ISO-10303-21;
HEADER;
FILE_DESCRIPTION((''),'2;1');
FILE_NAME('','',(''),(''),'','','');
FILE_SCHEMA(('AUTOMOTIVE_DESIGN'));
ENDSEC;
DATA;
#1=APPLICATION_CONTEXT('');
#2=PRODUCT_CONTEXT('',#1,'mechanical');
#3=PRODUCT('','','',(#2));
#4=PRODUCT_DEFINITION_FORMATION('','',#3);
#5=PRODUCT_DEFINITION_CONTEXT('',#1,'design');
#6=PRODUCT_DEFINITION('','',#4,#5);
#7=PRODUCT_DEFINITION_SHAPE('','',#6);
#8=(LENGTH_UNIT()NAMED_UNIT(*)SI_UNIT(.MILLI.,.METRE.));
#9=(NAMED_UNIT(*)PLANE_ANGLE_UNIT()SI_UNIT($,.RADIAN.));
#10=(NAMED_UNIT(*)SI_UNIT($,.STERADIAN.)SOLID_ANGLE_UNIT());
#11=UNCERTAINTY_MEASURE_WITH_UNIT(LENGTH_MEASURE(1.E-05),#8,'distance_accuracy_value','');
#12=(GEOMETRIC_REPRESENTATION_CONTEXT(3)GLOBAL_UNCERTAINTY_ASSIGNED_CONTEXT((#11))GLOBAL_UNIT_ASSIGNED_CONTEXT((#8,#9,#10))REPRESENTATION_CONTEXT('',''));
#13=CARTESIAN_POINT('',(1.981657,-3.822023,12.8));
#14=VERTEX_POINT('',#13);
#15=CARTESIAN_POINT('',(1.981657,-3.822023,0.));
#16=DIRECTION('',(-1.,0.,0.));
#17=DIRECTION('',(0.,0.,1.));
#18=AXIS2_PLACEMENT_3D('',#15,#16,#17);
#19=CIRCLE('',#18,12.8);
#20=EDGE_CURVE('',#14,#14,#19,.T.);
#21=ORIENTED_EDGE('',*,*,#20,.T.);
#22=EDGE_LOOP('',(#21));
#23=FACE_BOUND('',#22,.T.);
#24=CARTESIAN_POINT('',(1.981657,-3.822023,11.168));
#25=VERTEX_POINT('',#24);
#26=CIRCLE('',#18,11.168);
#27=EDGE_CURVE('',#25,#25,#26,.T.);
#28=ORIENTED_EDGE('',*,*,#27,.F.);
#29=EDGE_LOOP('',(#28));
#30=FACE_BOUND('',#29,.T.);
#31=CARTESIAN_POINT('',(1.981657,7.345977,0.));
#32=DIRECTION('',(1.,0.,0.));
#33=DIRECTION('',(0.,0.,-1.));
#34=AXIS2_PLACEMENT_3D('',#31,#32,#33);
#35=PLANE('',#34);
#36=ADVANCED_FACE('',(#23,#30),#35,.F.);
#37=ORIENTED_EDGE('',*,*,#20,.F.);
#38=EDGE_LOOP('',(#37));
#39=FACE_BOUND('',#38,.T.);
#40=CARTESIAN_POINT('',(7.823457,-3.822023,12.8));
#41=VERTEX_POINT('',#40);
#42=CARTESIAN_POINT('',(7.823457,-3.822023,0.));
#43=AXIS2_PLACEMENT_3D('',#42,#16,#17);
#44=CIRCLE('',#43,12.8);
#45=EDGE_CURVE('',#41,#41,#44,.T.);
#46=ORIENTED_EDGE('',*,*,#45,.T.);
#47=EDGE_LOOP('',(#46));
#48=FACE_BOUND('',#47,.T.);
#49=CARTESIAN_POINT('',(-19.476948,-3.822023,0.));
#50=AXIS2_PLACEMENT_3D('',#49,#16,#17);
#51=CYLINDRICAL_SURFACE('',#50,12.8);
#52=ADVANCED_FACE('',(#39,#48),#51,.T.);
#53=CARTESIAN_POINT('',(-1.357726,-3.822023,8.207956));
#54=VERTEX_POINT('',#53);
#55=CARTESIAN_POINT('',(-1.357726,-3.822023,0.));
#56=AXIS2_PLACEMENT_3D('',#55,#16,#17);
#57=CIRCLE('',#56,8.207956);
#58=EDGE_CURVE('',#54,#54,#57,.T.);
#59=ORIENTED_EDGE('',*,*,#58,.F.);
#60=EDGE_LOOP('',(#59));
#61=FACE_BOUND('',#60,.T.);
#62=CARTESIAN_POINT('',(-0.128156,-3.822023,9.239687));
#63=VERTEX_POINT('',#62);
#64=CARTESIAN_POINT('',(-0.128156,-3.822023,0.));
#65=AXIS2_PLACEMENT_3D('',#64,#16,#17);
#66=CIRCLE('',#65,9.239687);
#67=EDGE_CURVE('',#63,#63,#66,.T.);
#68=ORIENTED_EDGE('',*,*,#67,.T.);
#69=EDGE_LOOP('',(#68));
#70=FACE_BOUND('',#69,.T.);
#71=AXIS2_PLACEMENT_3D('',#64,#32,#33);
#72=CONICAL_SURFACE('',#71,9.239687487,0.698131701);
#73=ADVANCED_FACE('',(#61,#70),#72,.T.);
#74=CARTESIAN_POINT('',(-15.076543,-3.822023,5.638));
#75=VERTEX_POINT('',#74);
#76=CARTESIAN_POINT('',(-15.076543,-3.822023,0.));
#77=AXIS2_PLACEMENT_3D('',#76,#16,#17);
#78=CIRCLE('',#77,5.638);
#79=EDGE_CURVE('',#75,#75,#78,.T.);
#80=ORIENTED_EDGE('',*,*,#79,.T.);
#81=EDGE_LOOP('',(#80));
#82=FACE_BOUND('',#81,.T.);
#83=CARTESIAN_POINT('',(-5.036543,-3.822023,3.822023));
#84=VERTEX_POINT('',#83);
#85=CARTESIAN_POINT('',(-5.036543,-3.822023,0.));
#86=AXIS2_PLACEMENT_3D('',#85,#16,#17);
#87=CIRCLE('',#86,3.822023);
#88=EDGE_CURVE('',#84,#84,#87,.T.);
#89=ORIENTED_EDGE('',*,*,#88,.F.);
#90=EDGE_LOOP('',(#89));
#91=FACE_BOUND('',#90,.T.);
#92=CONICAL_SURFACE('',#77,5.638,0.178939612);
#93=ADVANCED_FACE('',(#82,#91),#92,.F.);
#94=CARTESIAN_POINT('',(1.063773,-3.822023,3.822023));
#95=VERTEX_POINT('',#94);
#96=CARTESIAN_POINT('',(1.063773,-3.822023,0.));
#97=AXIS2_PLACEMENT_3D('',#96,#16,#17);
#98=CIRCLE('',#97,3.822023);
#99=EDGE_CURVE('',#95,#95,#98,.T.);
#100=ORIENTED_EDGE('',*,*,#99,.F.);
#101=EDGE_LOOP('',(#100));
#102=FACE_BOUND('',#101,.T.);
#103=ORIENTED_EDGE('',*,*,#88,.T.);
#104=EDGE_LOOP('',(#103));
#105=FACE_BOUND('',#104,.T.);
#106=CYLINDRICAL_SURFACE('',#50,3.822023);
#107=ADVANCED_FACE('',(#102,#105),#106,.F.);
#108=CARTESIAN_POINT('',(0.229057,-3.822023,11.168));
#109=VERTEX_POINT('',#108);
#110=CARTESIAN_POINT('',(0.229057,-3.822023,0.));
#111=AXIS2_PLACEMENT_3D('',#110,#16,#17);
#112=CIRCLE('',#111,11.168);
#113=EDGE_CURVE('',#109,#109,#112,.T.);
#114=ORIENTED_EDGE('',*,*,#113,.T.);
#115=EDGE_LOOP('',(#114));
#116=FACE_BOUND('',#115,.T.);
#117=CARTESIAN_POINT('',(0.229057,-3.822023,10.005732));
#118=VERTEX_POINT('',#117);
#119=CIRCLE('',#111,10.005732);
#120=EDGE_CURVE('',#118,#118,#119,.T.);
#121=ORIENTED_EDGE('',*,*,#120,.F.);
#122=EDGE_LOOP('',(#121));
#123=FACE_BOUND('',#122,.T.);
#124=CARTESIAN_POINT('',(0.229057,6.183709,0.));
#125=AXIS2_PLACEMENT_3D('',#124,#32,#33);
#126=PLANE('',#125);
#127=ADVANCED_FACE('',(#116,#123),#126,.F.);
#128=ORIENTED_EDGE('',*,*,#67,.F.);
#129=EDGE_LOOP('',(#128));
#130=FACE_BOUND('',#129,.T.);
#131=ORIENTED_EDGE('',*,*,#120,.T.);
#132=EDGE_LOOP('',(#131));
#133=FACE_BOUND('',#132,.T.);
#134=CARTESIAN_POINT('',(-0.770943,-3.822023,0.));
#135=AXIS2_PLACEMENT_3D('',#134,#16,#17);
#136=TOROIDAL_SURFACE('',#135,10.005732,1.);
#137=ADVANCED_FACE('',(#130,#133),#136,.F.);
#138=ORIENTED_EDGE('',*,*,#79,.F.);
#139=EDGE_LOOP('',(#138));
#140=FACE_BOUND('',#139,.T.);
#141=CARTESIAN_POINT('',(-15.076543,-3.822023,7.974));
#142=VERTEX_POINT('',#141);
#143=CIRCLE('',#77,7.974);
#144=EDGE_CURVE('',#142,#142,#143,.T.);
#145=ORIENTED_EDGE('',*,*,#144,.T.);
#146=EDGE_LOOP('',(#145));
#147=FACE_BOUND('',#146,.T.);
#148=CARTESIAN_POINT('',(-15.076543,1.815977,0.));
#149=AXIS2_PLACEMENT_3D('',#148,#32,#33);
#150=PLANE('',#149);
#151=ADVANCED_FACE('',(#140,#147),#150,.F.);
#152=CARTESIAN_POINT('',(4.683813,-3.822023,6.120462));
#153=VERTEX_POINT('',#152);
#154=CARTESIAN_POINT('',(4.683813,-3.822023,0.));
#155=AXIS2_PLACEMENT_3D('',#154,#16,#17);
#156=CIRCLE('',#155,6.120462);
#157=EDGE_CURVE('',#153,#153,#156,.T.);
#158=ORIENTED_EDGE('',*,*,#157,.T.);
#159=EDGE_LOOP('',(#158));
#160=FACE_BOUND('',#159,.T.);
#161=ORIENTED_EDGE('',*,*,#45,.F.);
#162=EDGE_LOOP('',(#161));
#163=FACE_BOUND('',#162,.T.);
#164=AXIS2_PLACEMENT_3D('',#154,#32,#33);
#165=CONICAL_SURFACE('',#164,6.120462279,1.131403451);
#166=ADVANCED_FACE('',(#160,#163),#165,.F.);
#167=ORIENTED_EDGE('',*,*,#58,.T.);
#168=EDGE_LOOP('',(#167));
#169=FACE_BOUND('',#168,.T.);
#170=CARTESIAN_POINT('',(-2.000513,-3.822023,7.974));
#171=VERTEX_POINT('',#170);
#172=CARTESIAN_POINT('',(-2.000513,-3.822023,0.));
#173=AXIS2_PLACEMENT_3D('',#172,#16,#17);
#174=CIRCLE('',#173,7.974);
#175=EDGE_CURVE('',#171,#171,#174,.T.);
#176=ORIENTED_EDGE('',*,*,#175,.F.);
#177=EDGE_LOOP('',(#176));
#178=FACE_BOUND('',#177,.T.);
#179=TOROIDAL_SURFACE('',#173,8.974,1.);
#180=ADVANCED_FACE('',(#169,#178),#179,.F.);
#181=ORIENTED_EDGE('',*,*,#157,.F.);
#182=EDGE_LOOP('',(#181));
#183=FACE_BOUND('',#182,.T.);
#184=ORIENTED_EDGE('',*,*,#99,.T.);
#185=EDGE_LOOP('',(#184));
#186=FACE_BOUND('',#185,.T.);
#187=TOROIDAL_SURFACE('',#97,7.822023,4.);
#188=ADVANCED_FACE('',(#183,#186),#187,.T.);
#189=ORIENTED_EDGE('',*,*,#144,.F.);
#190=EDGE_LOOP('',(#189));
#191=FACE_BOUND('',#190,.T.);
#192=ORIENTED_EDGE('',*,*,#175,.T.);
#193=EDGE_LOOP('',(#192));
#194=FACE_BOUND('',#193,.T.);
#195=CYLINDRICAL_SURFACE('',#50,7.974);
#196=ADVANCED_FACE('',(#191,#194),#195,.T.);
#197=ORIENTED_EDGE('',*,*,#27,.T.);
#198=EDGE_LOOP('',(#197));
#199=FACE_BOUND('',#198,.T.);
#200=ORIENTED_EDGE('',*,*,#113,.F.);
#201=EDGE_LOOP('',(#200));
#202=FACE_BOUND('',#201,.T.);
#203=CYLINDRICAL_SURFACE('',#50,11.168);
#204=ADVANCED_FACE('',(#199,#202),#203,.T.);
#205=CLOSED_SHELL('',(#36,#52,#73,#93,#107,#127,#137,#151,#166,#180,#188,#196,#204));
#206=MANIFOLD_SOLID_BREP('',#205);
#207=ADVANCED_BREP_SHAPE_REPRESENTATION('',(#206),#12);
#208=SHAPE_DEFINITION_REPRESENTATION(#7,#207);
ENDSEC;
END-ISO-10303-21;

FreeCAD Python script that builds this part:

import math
import FreeCAD as App
import Part
import Sketcher
Q = App.Units.Quantity

doc = App.newDocument("Part")
body = doc.addObject("PartDesign::Body", "Body")

# Sketch on XY plane
sketch1 = body.newObject("Sketcher::SketchObject", "Sketch")
sketch1.AttachmentSupport = (doc.getObject("XY_Plane"), [""])
sketch1.MapMode = "FlatFace"
sketch1.addGeometry([
    Part.LineSegment(App.Vector(7.823457, 8.977977, 0), App.Vector(1.981657, 8.977977, 0)),  # 0
    Part.LineSegment(App.Vector(1.981657, 8.977977, 0), App.Vector(1.981657, 7.345977, 0)),  # 1
    Part.LineSegment(App.Vector(1.981657, 7.345977, 0), App.Vector(0.229057, 7.345977, 0)),  # 2
    Part.LineSegment(App.Vector(0.229057, 7.345977, 0), App.Vector(0.229057, 6.183709, 0)),  # 3
    Part.ArcOfCircle(Part.Circle(App.Vector(-0.770943, 6.183709, 0), App.Vector(0, 0, 1), 1), math.radians(-50), math.radians(0)),  # 4
    Part.LineSegment(App.Vector(-0.128156, 5.417665, 0), App.Vector(-1.357726, 4.385933, 0)),  # 5
    Part.ArcOfCircle(Part.Circle(App.Vector(-2.000513, 5.151977, 0), App.Vector(0, 0, 1), 1), math.radians(-90), math.radians(-50)),  # 6
    Part.LineSegment(App.Vector(-2.000513, 4.151977, 0), App.Vector(-15.076543, 4.151977, 0)),  # 7
    Part.LineSegment(App.Vector(-15.076543, 4.151977, 0), App.Vector(-15.076543, 1.815977, 0)),  # 8
    Part.LineSegment(App.Vector(-15.076543, 1.815977, 0), App.Vector(-5.036543, 0, 0)),  # 9
    Part.LineSegment(App.Vector(-5.036543, 0, 0), App.Vector(1.063773, 0, 0)),  # 10
    Part.ArcOfCircle(Part.Circle(App.Vector(1.063773, 4, 0), App.Vector(0, 0, 1), 4), math.radians(-90), math.radians(-25.175357)),  # 11
    Part.LineSegment(App.Vector(4.683813, 2.29844, 0), App.Vector(7.823457, 8.977977, 0)),  # 12
], False)
sketch1.addGeometry(Part.LineSegment(App.Vector(-15.076543, -3.822023, 0), App.Vector(7.823457, -3.822023, 0)), True)  # axis
sketch1.addConstraint([
    Sketcher.Constraint("Coincident", 0, 2, 1, 1),
    Sketcher.Constraint("Coincident", 1, 2, 2, 1),
    Sketcher.Constraint("Coincident", 2, 2, 3, 1),
    Sketcher.Constraint("Tangent", 3, 2, 4, 2),
    Sketcher.Constraint("Tangent", 4, 1, 5, 1),
    Sketcher.Constraint("Tangent", 5, 2, 6, 2),
    Sketcher.Constraint("Tangent", 6, 1, 7, 1),
    Sketcher.Constraint("Coincident", 7, 2, 8, 1),
    Sketcher.Constraint("Coincident", 8, 2, 9, 1),
    Sketcher.Constraint("Coincident", 9, 2, 10, 1),
    Sketcher.Constraint("Tangent", 10, 2, 11, 1),
    Sketcher.Constraint("Tangent", 11, 2, 12, 1),
    Sketcher.Constraint("Coincident", 12, 2, 0, 1),
    Sketcher.Constraint("Horizontal", 0),
    Sketcher.Constraint("Vertical", 1),
    Sketcher.Constraint("Horizontal", 2),
    Sketcher.Constraint("Vertical", 3),
    Sketcher.Constraint("Horizontal", 7),
    Sketcher.Constraint("Vertical", 8),
    Sketcher.Constraint("Horizontal", 10),
    Sketcher.Constraint("Horizontal", 13),
    Sketcher.Constraint("Equal", 4, 6),
    Sketcher.Constraint("PointOnObject", 9, 2, -1),
    Sketcher.Constraint("Vertical", 8, 2, 13, 1),
    Sketcher.Constraint("Vertical", 12, 2, 13, 2),
    Sketcher.Constraint("Radius", 4, Q("1 mm")),
    Sketcher.Constraint("Radius", 11, Q("4 mm")),
    Sketcher.Constraint("Angle", 5, Q("-140 deg")),
    Sketcher.Constraint("DistanceX", 13, 1, 13, 2, Q("22.9 mm")),
    Sketcher.Constraint("DistanceY", 1, 2, 1, 1, Q("1.632 mm")),
    Sketcher.Constraint("DistanceY", 8, 2, 8, 1, Q("2.336 mm")),
    Sketcher.Constraint("DistanceX", 13, 1, 9, 2, Q("10.04 mm")),
    Sketcher.Constraint("DistanceX", 0, 2, 0, 1, Q("5.8418 mm")),
    Sketcher.Constraint("DistanceX", 2, 2, 2, 1, Q("1.7526 mm")),
    Sketcher.Constraint("DistanceY", 6, 3, 0, 2, Q("3.826 mm")),
    Sketcher.Constraint("DistanceY", 13, 1, 8, 2, Q("5.638 mm")),
    Sketcher.Constraint("DistanceX", 7, 2, 7, 1, Q("13.07603 mm")),
    Sketcher.Constraint("DistanceX", 5, 2, 11, 3, Q("2.421499 mm")),
    Sketcher.Constraint("Distance", 9, Q("10.20291 mm")),
    Sketcher.Constraint("DistanceX", 4, 3, -1, 1, Q("0.770943 mm")),
])
revolution = body.newObject("PartDesign::Revolution", "Revolution")
revolution.Profile = sketch1
revolution.ReferenceAxis = (sketch1, ["Axis0"])
revolution.Angle = 360

doc.recompute()
